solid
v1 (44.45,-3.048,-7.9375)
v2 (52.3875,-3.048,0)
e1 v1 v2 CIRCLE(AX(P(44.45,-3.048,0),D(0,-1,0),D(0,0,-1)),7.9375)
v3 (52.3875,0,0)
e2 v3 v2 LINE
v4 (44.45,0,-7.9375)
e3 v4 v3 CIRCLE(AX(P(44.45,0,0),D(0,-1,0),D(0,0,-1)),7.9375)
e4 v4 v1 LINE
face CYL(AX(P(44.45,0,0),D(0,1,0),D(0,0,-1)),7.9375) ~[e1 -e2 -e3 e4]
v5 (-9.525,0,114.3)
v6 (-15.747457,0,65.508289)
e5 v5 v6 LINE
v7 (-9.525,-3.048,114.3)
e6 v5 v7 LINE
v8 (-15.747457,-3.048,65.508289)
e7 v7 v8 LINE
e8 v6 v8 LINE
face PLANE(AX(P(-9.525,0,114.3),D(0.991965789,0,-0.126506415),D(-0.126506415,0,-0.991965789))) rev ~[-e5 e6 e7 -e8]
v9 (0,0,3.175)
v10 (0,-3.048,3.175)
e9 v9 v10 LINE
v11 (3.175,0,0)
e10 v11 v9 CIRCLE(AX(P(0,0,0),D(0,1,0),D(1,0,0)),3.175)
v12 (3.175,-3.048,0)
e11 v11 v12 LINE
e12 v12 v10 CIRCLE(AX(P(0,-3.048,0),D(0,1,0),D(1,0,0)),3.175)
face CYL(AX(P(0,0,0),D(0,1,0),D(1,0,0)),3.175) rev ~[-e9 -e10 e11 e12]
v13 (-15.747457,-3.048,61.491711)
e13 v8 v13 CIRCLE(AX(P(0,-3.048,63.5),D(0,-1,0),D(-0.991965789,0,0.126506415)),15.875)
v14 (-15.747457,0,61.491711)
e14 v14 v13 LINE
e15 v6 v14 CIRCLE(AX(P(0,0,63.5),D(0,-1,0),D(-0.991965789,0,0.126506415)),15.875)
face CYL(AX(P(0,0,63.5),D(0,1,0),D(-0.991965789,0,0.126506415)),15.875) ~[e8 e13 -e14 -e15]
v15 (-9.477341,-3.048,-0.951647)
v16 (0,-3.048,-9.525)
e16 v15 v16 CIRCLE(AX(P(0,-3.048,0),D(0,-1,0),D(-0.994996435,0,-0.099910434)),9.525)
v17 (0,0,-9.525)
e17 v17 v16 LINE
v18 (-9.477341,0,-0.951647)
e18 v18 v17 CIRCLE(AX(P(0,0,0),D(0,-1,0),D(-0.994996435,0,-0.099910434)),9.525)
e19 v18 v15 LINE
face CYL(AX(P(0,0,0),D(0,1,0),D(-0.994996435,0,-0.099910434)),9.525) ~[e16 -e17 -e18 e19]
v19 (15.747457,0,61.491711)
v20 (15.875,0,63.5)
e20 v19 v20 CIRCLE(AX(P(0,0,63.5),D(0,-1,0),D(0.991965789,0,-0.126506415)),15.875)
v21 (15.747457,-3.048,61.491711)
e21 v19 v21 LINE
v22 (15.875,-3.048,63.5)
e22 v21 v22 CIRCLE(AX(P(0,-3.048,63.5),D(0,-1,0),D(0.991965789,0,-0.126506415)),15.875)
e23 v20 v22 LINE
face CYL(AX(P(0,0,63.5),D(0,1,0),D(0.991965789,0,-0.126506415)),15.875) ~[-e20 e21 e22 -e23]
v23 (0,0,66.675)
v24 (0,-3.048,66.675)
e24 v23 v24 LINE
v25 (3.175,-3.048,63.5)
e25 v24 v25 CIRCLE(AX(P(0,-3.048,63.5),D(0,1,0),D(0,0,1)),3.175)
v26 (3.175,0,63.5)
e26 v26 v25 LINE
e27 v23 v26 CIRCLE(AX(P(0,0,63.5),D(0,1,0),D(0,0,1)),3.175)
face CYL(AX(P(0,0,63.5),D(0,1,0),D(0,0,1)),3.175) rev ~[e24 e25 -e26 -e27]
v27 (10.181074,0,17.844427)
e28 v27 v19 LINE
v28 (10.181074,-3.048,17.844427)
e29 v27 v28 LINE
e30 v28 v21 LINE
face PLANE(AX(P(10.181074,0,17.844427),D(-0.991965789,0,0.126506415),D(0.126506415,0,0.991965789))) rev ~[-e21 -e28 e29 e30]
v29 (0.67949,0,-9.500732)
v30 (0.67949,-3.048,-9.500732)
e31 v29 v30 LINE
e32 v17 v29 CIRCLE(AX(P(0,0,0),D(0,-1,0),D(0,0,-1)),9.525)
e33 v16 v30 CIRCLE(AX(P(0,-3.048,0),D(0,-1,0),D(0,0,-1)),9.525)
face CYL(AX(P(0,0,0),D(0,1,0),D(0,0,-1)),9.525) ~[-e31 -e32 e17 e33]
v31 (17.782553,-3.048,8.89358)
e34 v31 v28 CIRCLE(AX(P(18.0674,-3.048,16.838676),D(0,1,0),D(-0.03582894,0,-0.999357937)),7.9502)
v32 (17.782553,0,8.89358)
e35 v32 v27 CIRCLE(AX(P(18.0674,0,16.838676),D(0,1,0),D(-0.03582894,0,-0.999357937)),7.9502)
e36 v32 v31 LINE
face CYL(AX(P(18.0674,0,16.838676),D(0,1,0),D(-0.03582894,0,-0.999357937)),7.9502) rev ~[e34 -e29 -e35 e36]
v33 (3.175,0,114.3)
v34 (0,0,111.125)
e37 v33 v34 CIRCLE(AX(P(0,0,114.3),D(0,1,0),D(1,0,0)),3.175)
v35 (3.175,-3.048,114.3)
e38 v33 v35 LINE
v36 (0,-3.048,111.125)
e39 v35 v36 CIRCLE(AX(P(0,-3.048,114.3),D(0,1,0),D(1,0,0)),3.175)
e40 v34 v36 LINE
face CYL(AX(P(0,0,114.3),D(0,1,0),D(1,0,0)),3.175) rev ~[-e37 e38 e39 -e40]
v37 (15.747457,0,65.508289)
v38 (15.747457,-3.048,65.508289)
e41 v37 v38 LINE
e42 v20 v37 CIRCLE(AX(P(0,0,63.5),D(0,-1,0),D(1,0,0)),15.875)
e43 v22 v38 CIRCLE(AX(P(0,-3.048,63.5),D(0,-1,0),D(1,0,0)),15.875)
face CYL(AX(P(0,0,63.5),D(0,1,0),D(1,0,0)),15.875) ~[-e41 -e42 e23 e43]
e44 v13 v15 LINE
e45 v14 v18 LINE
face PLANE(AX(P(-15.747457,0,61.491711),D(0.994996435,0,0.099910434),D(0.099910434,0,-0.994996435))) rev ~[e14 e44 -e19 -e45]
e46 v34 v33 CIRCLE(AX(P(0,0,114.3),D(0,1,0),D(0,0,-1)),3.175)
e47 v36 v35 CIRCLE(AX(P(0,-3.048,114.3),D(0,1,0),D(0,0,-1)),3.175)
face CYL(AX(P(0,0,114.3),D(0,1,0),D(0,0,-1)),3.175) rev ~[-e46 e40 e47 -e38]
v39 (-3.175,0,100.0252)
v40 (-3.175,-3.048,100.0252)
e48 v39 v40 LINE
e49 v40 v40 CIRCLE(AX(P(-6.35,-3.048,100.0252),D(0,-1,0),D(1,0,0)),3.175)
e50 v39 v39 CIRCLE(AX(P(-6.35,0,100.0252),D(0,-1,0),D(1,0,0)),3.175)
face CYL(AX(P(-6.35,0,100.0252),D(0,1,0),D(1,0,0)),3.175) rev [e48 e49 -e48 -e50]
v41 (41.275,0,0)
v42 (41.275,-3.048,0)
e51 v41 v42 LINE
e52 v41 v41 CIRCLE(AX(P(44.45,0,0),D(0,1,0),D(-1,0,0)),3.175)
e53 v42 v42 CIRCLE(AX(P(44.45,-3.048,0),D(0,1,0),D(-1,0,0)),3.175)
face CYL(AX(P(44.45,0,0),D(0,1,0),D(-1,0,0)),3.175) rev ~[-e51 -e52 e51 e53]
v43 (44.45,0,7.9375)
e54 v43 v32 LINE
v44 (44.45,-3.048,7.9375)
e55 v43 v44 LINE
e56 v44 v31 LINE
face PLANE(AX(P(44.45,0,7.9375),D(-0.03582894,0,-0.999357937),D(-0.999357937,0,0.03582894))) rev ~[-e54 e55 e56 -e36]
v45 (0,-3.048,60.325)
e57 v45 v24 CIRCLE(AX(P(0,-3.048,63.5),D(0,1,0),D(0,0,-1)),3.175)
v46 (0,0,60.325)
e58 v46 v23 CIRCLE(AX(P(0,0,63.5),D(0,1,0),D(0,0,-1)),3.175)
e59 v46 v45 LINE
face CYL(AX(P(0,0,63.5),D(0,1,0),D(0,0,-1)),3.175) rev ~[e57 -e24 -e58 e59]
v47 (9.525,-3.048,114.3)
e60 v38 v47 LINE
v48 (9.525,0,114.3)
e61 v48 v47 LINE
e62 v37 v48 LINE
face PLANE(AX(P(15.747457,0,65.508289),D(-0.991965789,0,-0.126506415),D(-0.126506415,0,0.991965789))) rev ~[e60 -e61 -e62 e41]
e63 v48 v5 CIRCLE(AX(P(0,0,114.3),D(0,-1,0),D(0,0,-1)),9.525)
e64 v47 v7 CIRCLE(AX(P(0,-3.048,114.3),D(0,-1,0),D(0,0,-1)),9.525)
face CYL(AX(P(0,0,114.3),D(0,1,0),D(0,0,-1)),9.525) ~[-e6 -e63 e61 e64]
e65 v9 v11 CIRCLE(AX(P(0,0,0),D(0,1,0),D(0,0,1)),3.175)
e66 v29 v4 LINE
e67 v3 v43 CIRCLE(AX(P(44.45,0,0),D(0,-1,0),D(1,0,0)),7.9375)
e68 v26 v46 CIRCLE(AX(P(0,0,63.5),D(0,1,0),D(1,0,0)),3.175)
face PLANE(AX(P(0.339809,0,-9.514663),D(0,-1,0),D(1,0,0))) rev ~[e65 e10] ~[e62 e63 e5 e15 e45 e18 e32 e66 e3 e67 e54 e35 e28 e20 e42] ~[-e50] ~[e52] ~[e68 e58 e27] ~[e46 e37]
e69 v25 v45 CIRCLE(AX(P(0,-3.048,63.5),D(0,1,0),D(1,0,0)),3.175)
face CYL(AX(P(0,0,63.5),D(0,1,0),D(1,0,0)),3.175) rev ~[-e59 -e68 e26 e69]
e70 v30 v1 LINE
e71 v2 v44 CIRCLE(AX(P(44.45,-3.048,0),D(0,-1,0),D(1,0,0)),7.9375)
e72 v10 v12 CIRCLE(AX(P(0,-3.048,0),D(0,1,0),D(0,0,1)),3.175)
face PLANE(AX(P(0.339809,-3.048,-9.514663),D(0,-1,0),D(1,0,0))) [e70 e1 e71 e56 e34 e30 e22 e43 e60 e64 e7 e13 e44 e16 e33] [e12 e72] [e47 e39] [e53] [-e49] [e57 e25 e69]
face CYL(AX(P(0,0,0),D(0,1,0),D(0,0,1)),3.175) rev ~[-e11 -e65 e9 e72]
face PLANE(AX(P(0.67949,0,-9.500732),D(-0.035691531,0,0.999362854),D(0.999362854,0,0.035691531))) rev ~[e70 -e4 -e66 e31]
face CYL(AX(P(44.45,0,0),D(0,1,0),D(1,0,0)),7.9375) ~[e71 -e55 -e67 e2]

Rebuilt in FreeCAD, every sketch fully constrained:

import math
import FreeCAD as App
import Part
import Sketcher
from FreeCAD import Vector
Q = App.Units.Quantity

doc = App.newDocument("Part")
params = doc.addObject("Spreadsheet::Sheet", "Params")
for row, (alias, value) in enumerate([
    ("sketch1_diameter", "0.25 in"),
    ("sketch1_radius", "0.375 in"),
    ("sketch1_radius2", "0.3125 in"),
    ("sketch1_radius3", "0.313 in"),
    ("sketch1_radius4", "0.625 in"),
    ("pad1_length", "0.12 in"),
], start=1):
    params.set(f"A{row}", alias)
    params.set(f"B{row}", "=" + value)
    params.setAlias(f"B{row}", alias)

body = doc.addObject("PartDesign::Body", "Body")

sketch1 = doc.addObject("Sketcher::SketchObject", "Sketch")
body.addObject(sketch1)
sketch1.AttachmentSupport = (doc.XZ_Plane, [""])
sketch1.MapMode = "FlatFace"
sketch1.addGeometry([
    Part.ArcOfCircle(Part.Circle(Vector(0, 0, 0), Vector(0, 0, 1), 9.5), math.radians(-90), math.radians(-85.91)),
    Part.LineSegment(Vector(0.7, -9.5, 0), Vector(44.5, -7.9, 0)),
    Part.ArcOfCircle(Part.Circle(Vector(44.5, 0, 0), Vector(0, 0, 1), 7.9), math.radians(-90), math.radians(0)),
    Part.ArcOfCircle(Part.Circle(Vector(44.5, 0, 0), Vector(0, 0, 1), 7.9), math.radians(0), math.radians(90)),
    Part.LineSegment(Vector(44.5, 7.9, 0), Vector(17.8, 8.9, 0)),
    Part.ArcOfCircle(Part.Circle(Vector(18.1, 16.8, 0), Vector(0, 0, 1), 8), math.radians(173), math.radians(268)),
    Part.LineSegment(Vector(10.2, 17.8, 0), Vector(15.7, 61.5, 0)),
    Part.ArcOfCircle(Part.Circle(Vector(0, 63.5, 0), Vector(0, 0, 1), 15.9), math.radians(-7.27), math.radians(0)),
    Part.ArcOfCircle(Part.Circle(Vector(0, 63.5, 0), Vector(0, 0, 1), 15.9), math.radians(0), math.radians(7.27)),
    Part.LineSegment(Vector(15.7, 65.5, 0), Vector(9.5, 114.3, 0)),
    Part.ArcOfCircle(Part.Circle(Vector(0, 114.3, 0), Vector(0, 0, 1), 9.5), math.radians(0), math.radians(180)),
    Part.LineSegment(Vector(-9.5, 114.3, 0), Vector(-15.7, 65.5, 0)),
    Part.ArcOfCircle(Part.Circle(Vector(0, 63.5, 0), Vector(0, 0, 1), 15.9), math.radians(172.73), math.radians(187.27)),
    Part.LineSegment(Vector(-15.7, 61.5, 0), Vector(-9.5, -1, 0)),
    Part.ArcOfCircle(Part.Circle(Vector(0, 0, 0), Vector(0, 0, 1), 9.5), math.radians(-174), math.radians(-90)),
    Part.ArcOfCircle(Part.Circle(Vector(0, 0, 0), Vector(0, 0, 1), 3.2), math.radians(90), math.radians(360)),
    Part.ArcOfCircle(Part.Circle(Vector(0, 0, 0), Vector(0, 0, 1), 3.2), math.radians(0), math.radians(90)),
    Part.Circle(Vector(44.5, 0, 0), Vector(0, 0, 1), 3.2),
    Part.ArcOfCircle(Part.Circle(Vector(0, 114.3, 0), Vector(0, 0, 1), 3.2), math.radians(-90), math.radians(0)),
    Part.ArcOfCircle(Part.Circle(Vector(0, 114.3, 0), Vector(0, 0, 1), 3.2), math.radians(0), math.radians(270)),
    Part.ArcOfCircle(Part.Circle(Vector(0, 63.5, 0), Vector(0, 0, 1), 3.2), math.radians(90), math.radians(270)),
    Part.ArcOfCircle(Part.Circle(Vector(0, 63.5, 0), Vector(0, 0, 1), 3.2), math.radians(0), math.radians(90)),
    Part.ArcOfCircle(Part.Circle(Vector(0, 63.5, 0), Vector(0, 0, 1), 3.2), math.radians(-90), math.radians(0)),
    Part.Circle(Vector(-6.3, 100, 0), Vector(0, 0, 1), 3.2),
], False)
sketch1.addConstraint([
    Sketcher.Constraint("Coincident", 0, 2, 1, 1),
    Sketcher.Constraint("Coincident", 1, 2, 2, 1),
    Sketcher.Constraint("Tangent", 2, 2, 3, 1),
    Sketcher.Constraint("Coincident", 3, 2, 4, 1),
    Sketcher.Constraint("Tangent", 4, 2, 5, 2),
    Sketcher.Constraint("Tangent", 5, 1, 6, 1),
    Sketcher.Constraint("Tangent", 6, 2, 7, 1),
    Sketcher.Constraint("Tangent", 7, 2, 8, 1),
    Sketcher.Constraint("Tangent", 8, 2, 9, 1),
    Sketcher.Constraint("Coincident", 9, 2, 10, 1),
    Sketcher.Constraint("Coincident", 10, 2, 11, 1),
    Sketcher.Constraint("Tangent", 11, 2, 12, 1),
    Sketcher.Constraint("Coincident", 12, 2, 13, 1),
    Sketcher.Constraint("Tangent", 13, 2, 14, 1),
    Sketcher.Constraint("Tangent", 14, 2, 0, 1),
    Sketcher.Constraint("Tangent", 15, 1, 16, 2),
    Sketcher.Constraint("Coincident", 16, 1, 15, 2),
    Sketcher.Constraint("Tangent", 18, 1, 19, 2),
    Sketcher.Constraint("Coincident", 19, 1, 18, 2),
    Sketcher.Constraint("Tangent", 20, 1, 21, 2),
    Sketcher.Constraint("Tangent", 21, 1, 22, 2),
    Sketcher.Constraint("Tangent", 22, 1, 20, 2),
    Sketcher.Constraint("Coincident", 0, 3, -1, 1),
    Sketcher.Constraint("Coincident", 15, 3, -1, 1),
    Sketcher.Constraint("Coincident", 12, 3, 7, 3),
    Sketcher.Constraint("Coincident", 17, 3, 2, 3),
    Sketcher.Constraint("Coincident", 18, 3, 10, 3),
    Sketcher.Constraint("Coincident", 20, 3, 7, 3),
    Sketcher.Constraint("Equal", 2, 3),
    Sketcher.Constraint("Equal", 7, 8),
    Sketcher.Constraint("Equal", 0, 10),
    Sketcher.Constraint("Equal", 8, 12),
    Sketcher.Constraint("Equal", 10, 14),
    Sketcher.Constraint("Equal", 16, 17),
    Sketcher.Constraint("Equal", 17, 18),
    Sketcher.Constraint("Equal", 19, 20),
    Sketcher.Constraint("Equal", 22, 23),
    Sketcher.Constraint("Symmetric", 9, 2, 10, 2, -2),
    Sketcher.Constraint("Symmetric", 6, 2, 12, 2, -2),
    Sketcher.Constraint("Symmetric", 1, 2, 3, 2, -1),
    Sketcher.Constraint("PointOnObject", 2, 2, -1),
    Sketcher.Constraint("PointOnObject", 14, 2, -2),
    Sketcher.Constraint("PointOnObject", 15, 1, -2),
    Sketcher.Constraint("PointOnObject", 16, 1, -1),
    Sketcher.Constraint("PointOnObject", 18, 1, -2),
    Sketcher.Constraint("PointOnObject", 20, 1, -2),
    Sketcher.Constraint("PointOnObject", 22, 1, -2),
    Sketcher.Constraint("Parallel", 6, 11),
    Sketcher.Constraint("Horizontal", 22, 3, 7, 2),
    Sketcher.Constraint("Horizontal", 19, 3, 9, 2),
    Sketcher.Constraint("Horizontal", 10, 2, 19, 1),
    Sketcher.Constraint("Horizontal", 7, 2, 21, 1),
    Sketcher.Constraint("Vertical", 17, 3, 1, 2),
    Sketcher.Constraint("Diameter", 17, Q("0.25 in")),
    Sketcher.Constraint("Radius", 0, Q("0.375 in")),
    Sketcher.Constraint("Radius", 2, Q("0.3125 in")),
    Sketcher.Constraint("Radius", 5, Q("0.313 in")),
    Sketcher.Constraint("Radius", 7, Q("0.625 in")),
    Sketcher.Constraint("DistanceY", 8, 3, 10, 3, Q("2 in")),
    Sketcher.Constraint("DistanceY", -1, 1, 7, 3, Q("2.5 in")),
    Sketcher.Constraint("DistanceX", -1, 1, 2, 3, Q("1.75 in")),
    Sketcher.Constraint("DistanceX", 23, 3, -1, 1, Q("0.25 in")),
    Sketcher.Constraint("DistanceY", -1, 1, 23, 3, Q("3.938 in")),
    Sketcher.Constraint("DistanceX", -1, 1, 5, 3, Q("18.0674 mm")),
    Sketcher.Constraint("DistanceX", -1, 1, 0, 2, Q("0.67949 mm")),
])
sketch1.setExpression("Constraints[53]", "Params.sketch1_diameter")
sketch1.setExpression("Constraints[54]", "Params.sketch1_radius")
sketch1.setExpression("Constraints[55]", "Params.sketch1_radius2")
sketch1.setExpression("Constraints[56]", "Params.sketch1_radius3")
sketch1.setExpression("Constraints[57]", "Params.sketch1_radius4")
pad1 = doc.addObject("PartDesign::Pad", "Pad")
body.addObject(pad1)
pad1.Profile = sketch1
pad1.setExpression("Length", "Params.pad1_length")

doc.recompute()
